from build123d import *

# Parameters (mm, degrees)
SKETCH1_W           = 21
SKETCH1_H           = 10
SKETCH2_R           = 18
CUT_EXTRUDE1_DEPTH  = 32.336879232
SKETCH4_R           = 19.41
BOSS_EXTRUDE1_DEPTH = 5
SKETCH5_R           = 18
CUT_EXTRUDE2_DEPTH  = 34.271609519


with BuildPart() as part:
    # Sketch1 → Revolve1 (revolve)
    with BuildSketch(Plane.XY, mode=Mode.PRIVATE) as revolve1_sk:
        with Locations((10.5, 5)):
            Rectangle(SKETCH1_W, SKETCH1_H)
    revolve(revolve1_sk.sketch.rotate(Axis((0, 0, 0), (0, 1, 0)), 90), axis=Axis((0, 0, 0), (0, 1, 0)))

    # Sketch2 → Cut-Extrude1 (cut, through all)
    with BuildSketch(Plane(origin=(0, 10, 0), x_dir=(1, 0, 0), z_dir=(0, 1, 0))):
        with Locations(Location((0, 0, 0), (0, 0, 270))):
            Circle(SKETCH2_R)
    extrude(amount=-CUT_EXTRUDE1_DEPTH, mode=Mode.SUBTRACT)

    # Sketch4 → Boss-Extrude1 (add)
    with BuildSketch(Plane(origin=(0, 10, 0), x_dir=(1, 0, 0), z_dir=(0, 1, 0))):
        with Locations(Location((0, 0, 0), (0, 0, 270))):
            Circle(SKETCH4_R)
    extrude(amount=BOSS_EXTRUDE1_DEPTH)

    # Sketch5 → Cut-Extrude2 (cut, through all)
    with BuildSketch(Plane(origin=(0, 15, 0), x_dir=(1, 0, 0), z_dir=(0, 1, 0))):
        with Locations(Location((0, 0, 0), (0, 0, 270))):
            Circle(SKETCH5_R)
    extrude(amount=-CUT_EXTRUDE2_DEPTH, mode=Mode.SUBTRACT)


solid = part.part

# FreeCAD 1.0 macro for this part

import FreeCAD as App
import Part
import Sketcher
from FreeCAD import Vector

doc = App.newDocument("Part")
body = doc.addObject("PartDesign::Body", "Body")

# Sketch on XY plane
sketch1 = body.newObject("Sketcher::SketchObject", "Sketch")
sketch1.AttachmentSupport = (doc.getObject("XY_Plane"), [""])
sketch1.MapMode = "FlatFace"
sketch1.addGeometry([
    Part.LineSegment(Vector(0, 10, 0), Vector(0, 0, 0)),
    Part.LineSegment(Vector(0, 0, 0), Vector(21, 0, 0)),
    Part.LineSegment(Vector(21, 0, 0), Vector(21, 10, 0)),
    Part.LineSegment(Vector(21, 10, 0), Vector(0, 10, 0)),
], False)
sketch1.addConstraint([
    Sketcher.Constraint("Coincident", 0, 2, 1, 1),
    Sketcher.Constraint("Coincident", 1, 2, 2, 1),
    Sketcher.Constraint("Coincident", 2, 2, 3, 1),
    Sketcher.Constraint("Coincident", 3, 2, 0, 1),
    Sketcher.Constraint("Vertical", 0),
    Sketcher.Constraint("Horizontal", 1),
    Sketcher.Constraint("Vertical", 2),
    Sketcher.Constraint("Horizontal", 3),
    Sketcher.Constraint("Coincident", 0, 2, -1, 1),
    Sketcher.Constraint("DistanceX", 1, 1, 1, 2, 21.0),
    Sketcher.Constraint("DistanceY", 0, 2, 0, 1, 10.0),
])
revolution = body.newObject("PartDesign::Revolution", "Revolution")
revolution.Profile = sketch1
revolution.ReferenceAxis = (sketch1, ["V_Axis"])
revolution.Angle = 360

# Sketch on XZ plane
sketch2 = body.newObject("Sketcher::SketchObject", "Sketch001")
sketch2.AttachmentSupport = (doc.getObject("XZ_Plane"), [""])
sketch2.MapMode = "FlatFace"
sketch2.AttachmentOffset = App.Placement(Vector(0, 0, -10), App.Rotation())
sketch2.addGeometry(Part.Circle(Vector(0, 0, 0), Vector(0, 0, 1), 18), False)
sketch2.addConstraint([
    Sketcher.Constraint("Coincident", 0, 3, -1, 1),
    Sketcher.Constraint("Diameter", 0, 36.0),
])
pocket1 = body.newObject("PartDesign::Pocket", "Pocket")
pocket1.Profile = sketch2
pocket1.Type = "ThroughAll"
pocket1.Reversed = True

# Sketch on XZ plane
sketch3 = body.newObject("Sketcher::SketchObject", "Sketch002")
sketch3.AttachmentSupport = (doc.getObject("XZ_Plane"), [""])
sketch3.MapMode = "FlatFace"
sketch3.AttachmentOffset = App.Placement(Vector(0, 0, -10), App.Rotation())
sketch3.addGeometry(Part.Circle(Vector(0, 0, 0), Vector(0, 0, 1), 19), False)
sketch3.addConstraint([
    Sketcher.Constraint("Coincident", 0, 3, -1, 1),
    Sketcher.Constraint("Diameter", 0, 38.82),
])
pad1 = body.newObject("PartDesign::Pad", "Pad")
pad1.Profile = sketch3
pad1.Length = 5
pad1.Reversed = True

# Sketch on XZ plane
sketch4 = body.newObject("Sketcher::SketchObject", "Sketch003")
sketch4.AttachmentSupport = (doc.getObject("XZ_Plane"), [""])
sketch4.MapMode = "FlatFace"
sketch4.AttachmentOffset = App.Placement(Vector(0, 0, -15), App.Rotation())
sketch4.addGeometry(Part.Circle(Vector(0, 0, 0), Vector(0, 0, 1), 18), False)
sketch4.addConstraint([
    Sketcher.Constraint("Coincident", 0, 3, -1, 1),
    Sketcher.Constraint("Diameter", 0, 36.0),
])
pocket2 = body.newObject("PartDesign::Pocket", "Pocket001")
pocket2.Profile = sketch4
pocket2.Type = "ThroughAll"
pocket2.Reversed = True

doc.recompute()
